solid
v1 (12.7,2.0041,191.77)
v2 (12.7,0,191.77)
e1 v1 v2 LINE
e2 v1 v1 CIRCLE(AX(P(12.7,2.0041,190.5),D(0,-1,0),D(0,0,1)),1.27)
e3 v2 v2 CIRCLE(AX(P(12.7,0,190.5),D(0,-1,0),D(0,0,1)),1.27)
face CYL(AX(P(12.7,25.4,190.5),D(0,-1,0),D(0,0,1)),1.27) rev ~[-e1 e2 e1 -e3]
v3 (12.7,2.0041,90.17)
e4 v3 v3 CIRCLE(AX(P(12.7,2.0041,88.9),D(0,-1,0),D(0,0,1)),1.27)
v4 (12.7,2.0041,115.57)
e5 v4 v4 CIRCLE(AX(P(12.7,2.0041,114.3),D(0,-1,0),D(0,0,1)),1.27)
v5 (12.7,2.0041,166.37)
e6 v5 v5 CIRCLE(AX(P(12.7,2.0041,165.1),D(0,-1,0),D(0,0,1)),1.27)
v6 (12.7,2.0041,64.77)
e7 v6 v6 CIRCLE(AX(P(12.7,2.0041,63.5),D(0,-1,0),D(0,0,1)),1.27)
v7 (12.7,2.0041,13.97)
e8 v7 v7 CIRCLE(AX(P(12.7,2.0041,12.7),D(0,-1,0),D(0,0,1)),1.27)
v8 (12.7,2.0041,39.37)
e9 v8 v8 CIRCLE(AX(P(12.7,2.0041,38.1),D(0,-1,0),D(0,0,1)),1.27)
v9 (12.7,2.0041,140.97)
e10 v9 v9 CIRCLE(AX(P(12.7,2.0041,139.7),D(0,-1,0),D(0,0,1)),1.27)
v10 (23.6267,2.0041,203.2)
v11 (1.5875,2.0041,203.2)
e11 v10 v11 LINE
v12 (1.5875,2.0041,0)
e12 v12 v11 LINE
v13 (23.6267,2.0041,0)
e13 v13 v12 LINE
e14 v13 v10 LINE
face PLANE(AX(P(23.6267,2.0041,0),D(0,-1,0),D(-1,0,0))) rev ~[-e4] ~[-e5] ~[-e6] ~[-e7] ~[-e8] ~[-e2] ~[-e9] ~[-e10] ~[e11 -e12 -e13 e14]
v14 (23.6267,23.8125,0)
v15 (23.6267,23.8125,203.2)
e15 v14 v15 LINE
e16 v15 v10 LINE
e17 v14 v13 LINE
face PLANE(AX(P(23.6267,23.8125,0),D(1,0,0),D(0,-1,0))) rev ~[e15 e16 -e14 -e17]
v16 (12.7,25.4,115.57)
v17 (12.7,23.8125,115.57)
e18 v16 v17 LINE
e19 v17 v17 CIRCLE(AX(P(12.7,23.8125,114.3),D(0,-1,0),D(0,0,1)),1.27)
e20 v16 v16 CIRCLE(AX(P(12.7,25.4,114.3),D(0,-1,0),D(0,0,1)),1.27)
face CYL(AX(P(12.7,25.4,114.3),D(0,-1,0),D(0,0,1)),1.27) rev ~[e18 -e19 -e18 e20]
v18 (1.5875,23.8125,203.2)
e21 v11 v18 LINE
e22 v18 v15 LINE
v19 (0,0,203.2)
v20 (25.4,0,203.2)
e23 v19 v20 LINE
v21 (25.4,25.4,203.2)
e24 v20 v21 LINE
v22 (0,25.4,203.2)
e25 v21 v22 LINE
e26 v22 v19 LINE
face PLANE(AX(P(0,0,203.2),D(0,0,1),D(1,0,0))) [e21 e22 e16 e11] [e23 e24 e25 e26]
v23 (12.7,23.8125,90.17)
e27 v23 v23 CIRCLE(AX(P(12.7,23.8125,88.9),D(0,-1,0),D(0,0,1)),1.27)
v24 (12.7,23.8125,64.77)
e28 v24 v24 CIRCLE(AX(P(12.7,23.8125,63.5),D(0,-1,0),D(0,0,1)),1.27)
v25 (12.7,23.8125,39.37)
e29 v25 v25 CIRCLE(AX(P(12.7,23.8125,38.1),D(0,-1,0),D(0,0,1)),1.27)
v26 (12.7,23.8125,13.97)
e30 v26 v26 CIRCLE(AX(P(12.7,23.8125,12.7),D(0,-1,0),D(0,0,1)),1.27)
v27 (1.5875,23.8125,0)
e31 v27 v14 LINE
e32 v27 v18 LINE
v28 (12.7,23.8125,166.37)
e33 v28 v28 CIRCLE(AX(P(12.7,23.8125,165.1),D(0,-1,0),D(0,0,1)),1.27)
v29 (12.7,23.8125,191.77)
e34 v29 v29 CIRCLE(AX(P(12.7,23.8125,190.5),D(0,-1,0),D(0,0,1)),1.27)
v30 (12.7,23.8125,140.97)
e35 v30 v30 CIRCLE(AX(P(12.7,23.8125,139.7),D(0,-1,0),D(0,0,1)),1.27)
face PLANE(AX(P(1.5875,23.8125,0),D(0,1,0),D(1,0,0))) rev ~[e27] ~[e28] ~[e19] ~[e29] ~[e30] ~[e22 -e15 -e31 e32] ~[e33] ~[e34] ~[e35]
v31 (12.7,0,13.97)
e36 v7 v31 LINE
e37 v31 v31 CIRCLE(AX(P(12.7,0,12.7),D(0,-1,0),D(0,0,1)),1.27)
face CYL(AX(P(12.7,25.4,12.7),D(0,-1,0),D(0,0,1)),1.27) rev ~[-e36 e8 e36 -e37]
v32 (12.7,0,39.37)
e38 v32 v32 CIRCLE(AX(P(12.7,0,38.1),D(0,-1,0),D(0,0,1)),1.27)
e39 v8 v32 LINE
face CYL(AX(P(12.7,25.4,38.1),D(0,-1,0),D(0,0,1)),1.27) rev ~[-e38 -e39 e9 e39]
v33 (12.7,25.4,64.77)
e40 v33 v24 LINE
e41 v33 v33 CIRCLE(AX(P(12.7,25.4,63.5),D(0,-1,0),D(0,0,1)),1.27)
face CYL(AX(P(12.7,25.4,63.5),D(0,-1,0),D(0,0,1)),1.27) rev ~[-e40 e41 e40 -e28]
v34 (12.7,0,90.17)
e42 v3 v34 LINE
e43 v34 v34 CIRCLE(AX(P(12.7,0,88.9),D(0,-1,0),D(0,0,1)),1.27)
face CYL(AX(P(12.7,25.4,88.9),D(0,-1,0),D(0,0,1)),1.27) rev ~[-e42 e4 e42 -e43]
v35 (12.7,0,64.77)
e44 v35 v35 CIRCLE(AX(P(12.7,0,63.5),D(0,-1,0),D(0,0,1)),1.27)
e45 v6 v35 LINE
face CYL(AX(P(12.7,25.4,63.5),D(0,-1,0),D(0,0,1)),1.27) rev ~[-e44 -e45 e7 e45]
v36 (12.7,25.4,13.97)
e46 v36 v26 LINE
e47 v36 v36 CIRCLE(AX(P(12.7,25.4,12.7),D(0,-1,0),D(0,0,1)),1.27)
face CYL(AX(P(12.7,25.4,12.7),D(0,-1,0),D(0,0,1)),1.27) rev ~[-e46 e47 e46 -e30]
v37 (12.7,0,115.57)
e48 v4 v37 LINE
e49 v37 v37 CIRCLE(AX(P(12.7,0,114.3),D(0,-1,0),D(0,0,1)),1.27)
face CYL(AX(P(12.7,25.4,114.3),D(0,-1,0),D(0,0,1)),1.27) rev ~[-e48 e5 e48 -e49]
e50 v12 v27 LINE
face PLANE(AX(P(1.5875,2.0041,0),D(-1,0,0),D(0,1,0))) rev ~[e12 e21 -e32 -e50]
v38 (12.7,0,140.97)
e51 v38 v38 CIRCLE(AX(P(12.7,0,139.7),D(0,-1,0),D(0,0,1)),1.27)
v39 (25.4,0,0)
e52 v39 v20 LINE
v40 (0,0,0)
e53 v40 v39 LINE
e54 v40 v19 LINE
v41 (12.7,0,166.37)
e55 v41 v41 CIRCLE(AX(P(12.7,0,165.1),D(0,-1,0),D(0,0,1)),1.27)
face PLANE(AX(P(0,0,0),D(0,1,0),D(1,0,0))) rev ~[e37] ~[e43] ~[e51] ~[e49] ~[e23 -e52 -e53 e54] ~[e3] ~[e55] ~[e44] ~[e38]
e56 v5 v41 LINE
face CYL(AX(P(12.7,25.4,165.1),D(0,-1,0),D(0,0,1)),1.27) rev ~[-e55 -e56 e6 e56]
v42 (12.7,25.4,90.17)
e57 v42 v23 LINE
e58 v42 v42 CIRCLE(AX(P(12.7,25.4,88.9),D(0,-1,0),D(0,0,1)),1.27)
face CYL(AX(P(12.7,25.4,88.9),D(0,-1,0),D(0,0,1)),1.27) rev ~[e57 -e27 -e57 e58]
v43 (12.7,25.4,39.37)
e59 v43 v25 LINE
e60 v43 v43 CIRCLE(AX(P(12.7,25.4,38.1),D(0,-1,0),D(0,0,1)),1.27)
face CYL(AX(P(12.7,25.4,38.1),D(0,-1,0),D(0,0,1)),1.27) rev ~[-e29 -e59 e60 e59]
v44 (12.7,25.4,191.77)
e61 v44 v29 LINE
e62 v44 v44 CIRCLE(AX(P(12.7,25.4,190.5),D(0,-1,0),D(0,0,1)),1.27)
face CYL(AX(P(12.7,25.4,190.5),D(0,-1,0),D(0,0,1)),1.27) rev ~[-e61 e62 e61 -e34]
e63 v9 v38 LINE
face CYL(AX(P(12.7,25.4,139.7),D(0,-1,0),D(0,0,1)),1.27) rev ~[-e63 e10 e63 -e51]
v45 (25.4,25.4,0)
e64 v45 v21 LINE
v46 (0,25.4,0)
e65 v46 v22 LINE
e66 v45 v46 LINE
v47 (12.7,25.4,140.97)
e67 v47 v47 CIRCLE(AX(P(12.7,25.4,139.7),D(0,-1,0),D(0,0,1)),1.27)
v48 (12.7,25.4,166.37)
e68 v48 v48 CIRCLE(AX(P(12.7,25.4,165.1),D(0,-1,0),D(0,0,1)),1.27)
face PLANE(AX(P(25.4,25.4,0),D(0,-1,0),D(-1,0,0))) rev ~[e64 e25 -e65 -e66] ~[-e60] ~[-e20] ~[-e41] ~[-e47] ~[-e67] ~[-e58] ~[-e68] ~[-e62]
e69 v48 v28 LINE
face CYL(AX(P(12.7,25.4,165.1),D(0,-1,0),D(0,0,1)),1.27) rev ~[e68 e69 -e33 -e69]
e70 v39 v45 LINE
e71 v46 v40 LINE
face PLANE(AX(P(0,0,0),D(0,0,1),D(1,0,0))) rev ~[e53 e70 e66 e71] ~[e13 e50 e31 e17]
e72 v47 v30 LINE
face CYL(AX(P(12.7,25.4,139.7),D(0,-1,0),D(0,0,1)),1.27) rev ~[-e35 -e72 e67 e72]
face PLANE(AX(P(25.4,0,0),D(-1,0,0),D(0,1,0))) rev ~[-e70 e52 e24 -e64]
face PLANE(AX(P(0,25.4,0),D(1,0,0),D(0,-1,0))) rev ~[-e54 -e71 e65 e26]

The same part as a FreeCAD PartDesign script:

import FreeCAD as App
import Part
import Sketcher

V = App.Vector
Q = App.Units.Quantity


def add_polygon(sketch, points):
    """Adds a closed chain of lines whose ends are joined by coincident constraints."""
    first, n = sketch.GeometryCount, len(points)
    for a, b in zip(points, points[1:] + points[:1]):
        sketch.addGeometry(Part.LineSegment(App.Vector(*a, 0), App.Vector(*b, 0)), False)
    for i in range(n):
        sketch.addConstraint(Sketcher.Constraint("Coincident", first + i, 2, first + (i + 1) % n, 1))

doc = App.newDocument("Part")
body = doc.addObject("PartDesign::Body", "Body")

sketch1 = body.newObject("Sketcher::SketchObject", "Sketch")
sketch1.AttachmentSupport = (doc.getObject("XY_Plane"), [""])
sketch1.MapMode = "FlatFace"
add_polygon(sketch1, [(0, 25.4), (0, 0), (25.4, 0), (25.4, 25.4)])
add_polygon(sketch1, [(1.5875, 2.0041), (1.5875, 23.8125), (23.6267, 23.8125), (23.6267, 2.0041)])
sketch1.addConstraint([
    Sketcher.Constraint("Vertical", 0),
    Sketcher.Constraint("Horizontal", 1),
    Sketcher.Constraint("Vertical", 2),
    Sketcher.Constraint("Horizontal", 3),
    Sketcher.Constraint("Vertical", 4),
    Sketcher.Constraint("Horizontal", 5),
    Sketcher.Constraint("Vertical", 6),
    Sketcher.Constraint("Horizontal", 7),
    Sketcher.Constraint("Coincident", 0, 2, -1, 1),
    Sketcher.Constraint("Equal", 3, 0),
    Sketcher.Constraint("DistanceX", 1, 1, 1, 2, Q("1 in")),
    Sketcher.Constraint("DistanceX", -1, 1, 4, 2, Q("0.0625 in")),
    Sketcher.Constraint("DistanceY", 4, 2, 3, 2, Q("0.0625 in")),
    Sketcher.Constraint("DistanceY", 4, 1, 4, 2, Q("0.8586 in")),
    Sketcher.Constraint("DistanceX", 5, 1, 5, 2, Q("22.0392 mm")),
])
pad1 = body.newObject("PartDesign::Pad", "Pad")
pad1.Profile = sketch1
pad1.Length = Q("8 in")

sketch2 = body.newObject("Sketcher::SketchObject", "Sketch001")
sketch2.AttachmentSupport = (doc.getObject("XZ_Plane"), [""])
sketch2.MapMode = "FlatFace"
sketch2.AttachmentOffset = App.Placement(V(0, 0, -1 * 25.4), App.Rotation())
sketch2.addGeometry([
    Part.Circle(V(12.7, 12.7, 0), V(0, 0, 1), 1.27),
    Part.Circle(V(12.7, 38.1, 0), V(0, 0, 1), 1.27),
    Part.Circle(V(12.7, 63.5, 0), V(0, 0, 1), 1.27),
    Part.Circle(V(12.7, 88.9, 0), V(0, 0, 1), 1.27),
    Part.Circle(V(12.7, 114.3, 0), V(0, 0, 1), 1.27),
    Part.Circle(V(12.7, 139.7, 0), V(0, 0, 1), 1.27),
    Part.Circle(V(12.7, 165.1, 0), V(0, 0, 1), 1.27),
    Part.Circle(V(12.7, 190.5, 0), V(0, 0, 1), 1.27),
    Part.Circle(V(12.7, 215.9, 0), V(0, 0, 1), 1.27),
    Part.Circle(V(12.7, 241.3, 0), V(0, 0, 1), 1.27),
    Part.Circle(V(12.7, 266.7, 0), V(0, 0, 1), 1.27),
    Part.Circle(V(12.7, 292.1, 0), V(0, 0, 1), 1.27),
    Part.Circle(V(12.7, 317.5, 0), V(0, 0, 1), 1.27),
    Part.Circle(V(12.7, 342.9, 0), V(0, 0, 1), 1.27),
    Part.Circle(V(12.7, 368.3, 0), V(0, 0, 1), 1.27),
], False)
sketch2.addConstraint([
    Sketcher.Constraint("Equal", 0, 1),
    Sketcher.Constraint("Equal", 1, 2),
    Sketcher.Constraint("Equal", 2, 3),
    Sketcher.Constraint("Equal", 3, 4),
    Sketcher.Constraint("Equal", 4, 5),
    Sketcher.Constraint("Equal", 5, 6),
    Sketcher.Constraint("Equal", 6, 7),
    Sketcher.Constraint("Equal", 7, 8),
    Sketcher.Constraint("Equal", 8, 9),
    Sketcher.Constraint("Equal", 9, 10),
    Sketcher.Constraint("Equal", 10, 11),
    Sketcher.Constraint("Equal", 11, 12),
    Sketcher.Constraint("Equal", 12, 13),
    Sketcher.Constraint("Equal", 13, 14),
    Sketcher.Constraint("Vertical", 0, 3, 1, 3),
    Sketcher.Constraint("Vertical", 1, 3, 2, 3),
    Sketcher.Constraint("Vertical", 2, 3, 3, 3),
    Sketcher.Constraint("Vertical", 3, 3, 4, 3),
    Sketcher.Constraint("Vertical", 4, 3, 5, 3),
    Sketcher.Constraint("Vertical", 5, 3, 6, 3),
    Sketcher.Constraint("Vertical", 6, 3, 7, 3),
    Sketcher.Constraint("Vertical", 7, 3, 8, 3),
    Sketcher.Constraint("Vertical", 8, 3, 9, 3),
    Sketcher.Constraint("Vertical", 9, 3, 10, 3),
    Sketcher.Constraint("Vertical", 10, 3, 11, 3),
    Sketcher.Constraint("Vertical", 11, 3, 12, 3),
    Sketcher.Constraint("Vertical", 12, 3, 13, 3),
    Sketcher.Constraint("Vertical", 13, 3, 14, 3),
    Sketcher.Constraint("Diameter", 0, Q("0.1 in")),
    Sketcher.Constraint("DistanceY", 0, 3, 1, 3, Q("1 in")),
    Sketcher.Constraint("DistanceY", 1, 3, 2, 3, Q("1 in")),
    Sketcher.Constraint("DistanceY", 2, 3, 3, 3, Q("1 in")),
    Sketcher.Constraint("DistanceY", 3, 3, 4, 3, Q("1 in")),
    Sketcher.Constraint("DistanceY", 4, 3, 5, 3, Q("1 in")),
    Sketcher.Constraint("DistanceY", 5, 3, 6, 3, Q("1 in")),
    Sketcher.Constraint("DistanceY", 6, 3, 7, 3, Q("1 in")),
    Sketcher.Constraint("DistanceY", 7, 3, 8, 3, Q("1 in")),
    Sketcher.Constraint("DistanceY", 8, 3, 9, 3, Q("1 in")),
    Sketcher.Constraint("DistanceY", 9, 3, 10, 3, Q("1 in")),
    Sketcher.Constraint("DistanceY", 10, 3, 11, 3, Q("1 in")),
    Sketcher.Constraint("DistanceY", 11, 3, 12, 3, Q("1 in")),
    Sketcher.Constraint("DistanceY", 12, 3, 13, 3, Q("1 in")),
    Sketcher.Constraint("DistanceY", 13, 3, 14, 3, Q("1 in")),
    Sketcher.Constraint("DistanceX", -1, 1, 0, 3, Q("0.5 in")),
    Sketcher.Constraint("DistanceY", -1, 1, 0, 3, Q("0.5 in")),
])
doc.recompute()
hole = body.newObject("PartDesign::Hole", "Hole")
hole.Profile = sketch2
hole.ThreadType = "None"
hole.Diameter = Q("0.1 in")
hole.DepthType = "Dimension"
hole.Depth = Q("1 in")
hole.DrillPoint = "Angled"
hole.DrillPointAngle = 118
hole.Reversed = True

doc.recompute()
